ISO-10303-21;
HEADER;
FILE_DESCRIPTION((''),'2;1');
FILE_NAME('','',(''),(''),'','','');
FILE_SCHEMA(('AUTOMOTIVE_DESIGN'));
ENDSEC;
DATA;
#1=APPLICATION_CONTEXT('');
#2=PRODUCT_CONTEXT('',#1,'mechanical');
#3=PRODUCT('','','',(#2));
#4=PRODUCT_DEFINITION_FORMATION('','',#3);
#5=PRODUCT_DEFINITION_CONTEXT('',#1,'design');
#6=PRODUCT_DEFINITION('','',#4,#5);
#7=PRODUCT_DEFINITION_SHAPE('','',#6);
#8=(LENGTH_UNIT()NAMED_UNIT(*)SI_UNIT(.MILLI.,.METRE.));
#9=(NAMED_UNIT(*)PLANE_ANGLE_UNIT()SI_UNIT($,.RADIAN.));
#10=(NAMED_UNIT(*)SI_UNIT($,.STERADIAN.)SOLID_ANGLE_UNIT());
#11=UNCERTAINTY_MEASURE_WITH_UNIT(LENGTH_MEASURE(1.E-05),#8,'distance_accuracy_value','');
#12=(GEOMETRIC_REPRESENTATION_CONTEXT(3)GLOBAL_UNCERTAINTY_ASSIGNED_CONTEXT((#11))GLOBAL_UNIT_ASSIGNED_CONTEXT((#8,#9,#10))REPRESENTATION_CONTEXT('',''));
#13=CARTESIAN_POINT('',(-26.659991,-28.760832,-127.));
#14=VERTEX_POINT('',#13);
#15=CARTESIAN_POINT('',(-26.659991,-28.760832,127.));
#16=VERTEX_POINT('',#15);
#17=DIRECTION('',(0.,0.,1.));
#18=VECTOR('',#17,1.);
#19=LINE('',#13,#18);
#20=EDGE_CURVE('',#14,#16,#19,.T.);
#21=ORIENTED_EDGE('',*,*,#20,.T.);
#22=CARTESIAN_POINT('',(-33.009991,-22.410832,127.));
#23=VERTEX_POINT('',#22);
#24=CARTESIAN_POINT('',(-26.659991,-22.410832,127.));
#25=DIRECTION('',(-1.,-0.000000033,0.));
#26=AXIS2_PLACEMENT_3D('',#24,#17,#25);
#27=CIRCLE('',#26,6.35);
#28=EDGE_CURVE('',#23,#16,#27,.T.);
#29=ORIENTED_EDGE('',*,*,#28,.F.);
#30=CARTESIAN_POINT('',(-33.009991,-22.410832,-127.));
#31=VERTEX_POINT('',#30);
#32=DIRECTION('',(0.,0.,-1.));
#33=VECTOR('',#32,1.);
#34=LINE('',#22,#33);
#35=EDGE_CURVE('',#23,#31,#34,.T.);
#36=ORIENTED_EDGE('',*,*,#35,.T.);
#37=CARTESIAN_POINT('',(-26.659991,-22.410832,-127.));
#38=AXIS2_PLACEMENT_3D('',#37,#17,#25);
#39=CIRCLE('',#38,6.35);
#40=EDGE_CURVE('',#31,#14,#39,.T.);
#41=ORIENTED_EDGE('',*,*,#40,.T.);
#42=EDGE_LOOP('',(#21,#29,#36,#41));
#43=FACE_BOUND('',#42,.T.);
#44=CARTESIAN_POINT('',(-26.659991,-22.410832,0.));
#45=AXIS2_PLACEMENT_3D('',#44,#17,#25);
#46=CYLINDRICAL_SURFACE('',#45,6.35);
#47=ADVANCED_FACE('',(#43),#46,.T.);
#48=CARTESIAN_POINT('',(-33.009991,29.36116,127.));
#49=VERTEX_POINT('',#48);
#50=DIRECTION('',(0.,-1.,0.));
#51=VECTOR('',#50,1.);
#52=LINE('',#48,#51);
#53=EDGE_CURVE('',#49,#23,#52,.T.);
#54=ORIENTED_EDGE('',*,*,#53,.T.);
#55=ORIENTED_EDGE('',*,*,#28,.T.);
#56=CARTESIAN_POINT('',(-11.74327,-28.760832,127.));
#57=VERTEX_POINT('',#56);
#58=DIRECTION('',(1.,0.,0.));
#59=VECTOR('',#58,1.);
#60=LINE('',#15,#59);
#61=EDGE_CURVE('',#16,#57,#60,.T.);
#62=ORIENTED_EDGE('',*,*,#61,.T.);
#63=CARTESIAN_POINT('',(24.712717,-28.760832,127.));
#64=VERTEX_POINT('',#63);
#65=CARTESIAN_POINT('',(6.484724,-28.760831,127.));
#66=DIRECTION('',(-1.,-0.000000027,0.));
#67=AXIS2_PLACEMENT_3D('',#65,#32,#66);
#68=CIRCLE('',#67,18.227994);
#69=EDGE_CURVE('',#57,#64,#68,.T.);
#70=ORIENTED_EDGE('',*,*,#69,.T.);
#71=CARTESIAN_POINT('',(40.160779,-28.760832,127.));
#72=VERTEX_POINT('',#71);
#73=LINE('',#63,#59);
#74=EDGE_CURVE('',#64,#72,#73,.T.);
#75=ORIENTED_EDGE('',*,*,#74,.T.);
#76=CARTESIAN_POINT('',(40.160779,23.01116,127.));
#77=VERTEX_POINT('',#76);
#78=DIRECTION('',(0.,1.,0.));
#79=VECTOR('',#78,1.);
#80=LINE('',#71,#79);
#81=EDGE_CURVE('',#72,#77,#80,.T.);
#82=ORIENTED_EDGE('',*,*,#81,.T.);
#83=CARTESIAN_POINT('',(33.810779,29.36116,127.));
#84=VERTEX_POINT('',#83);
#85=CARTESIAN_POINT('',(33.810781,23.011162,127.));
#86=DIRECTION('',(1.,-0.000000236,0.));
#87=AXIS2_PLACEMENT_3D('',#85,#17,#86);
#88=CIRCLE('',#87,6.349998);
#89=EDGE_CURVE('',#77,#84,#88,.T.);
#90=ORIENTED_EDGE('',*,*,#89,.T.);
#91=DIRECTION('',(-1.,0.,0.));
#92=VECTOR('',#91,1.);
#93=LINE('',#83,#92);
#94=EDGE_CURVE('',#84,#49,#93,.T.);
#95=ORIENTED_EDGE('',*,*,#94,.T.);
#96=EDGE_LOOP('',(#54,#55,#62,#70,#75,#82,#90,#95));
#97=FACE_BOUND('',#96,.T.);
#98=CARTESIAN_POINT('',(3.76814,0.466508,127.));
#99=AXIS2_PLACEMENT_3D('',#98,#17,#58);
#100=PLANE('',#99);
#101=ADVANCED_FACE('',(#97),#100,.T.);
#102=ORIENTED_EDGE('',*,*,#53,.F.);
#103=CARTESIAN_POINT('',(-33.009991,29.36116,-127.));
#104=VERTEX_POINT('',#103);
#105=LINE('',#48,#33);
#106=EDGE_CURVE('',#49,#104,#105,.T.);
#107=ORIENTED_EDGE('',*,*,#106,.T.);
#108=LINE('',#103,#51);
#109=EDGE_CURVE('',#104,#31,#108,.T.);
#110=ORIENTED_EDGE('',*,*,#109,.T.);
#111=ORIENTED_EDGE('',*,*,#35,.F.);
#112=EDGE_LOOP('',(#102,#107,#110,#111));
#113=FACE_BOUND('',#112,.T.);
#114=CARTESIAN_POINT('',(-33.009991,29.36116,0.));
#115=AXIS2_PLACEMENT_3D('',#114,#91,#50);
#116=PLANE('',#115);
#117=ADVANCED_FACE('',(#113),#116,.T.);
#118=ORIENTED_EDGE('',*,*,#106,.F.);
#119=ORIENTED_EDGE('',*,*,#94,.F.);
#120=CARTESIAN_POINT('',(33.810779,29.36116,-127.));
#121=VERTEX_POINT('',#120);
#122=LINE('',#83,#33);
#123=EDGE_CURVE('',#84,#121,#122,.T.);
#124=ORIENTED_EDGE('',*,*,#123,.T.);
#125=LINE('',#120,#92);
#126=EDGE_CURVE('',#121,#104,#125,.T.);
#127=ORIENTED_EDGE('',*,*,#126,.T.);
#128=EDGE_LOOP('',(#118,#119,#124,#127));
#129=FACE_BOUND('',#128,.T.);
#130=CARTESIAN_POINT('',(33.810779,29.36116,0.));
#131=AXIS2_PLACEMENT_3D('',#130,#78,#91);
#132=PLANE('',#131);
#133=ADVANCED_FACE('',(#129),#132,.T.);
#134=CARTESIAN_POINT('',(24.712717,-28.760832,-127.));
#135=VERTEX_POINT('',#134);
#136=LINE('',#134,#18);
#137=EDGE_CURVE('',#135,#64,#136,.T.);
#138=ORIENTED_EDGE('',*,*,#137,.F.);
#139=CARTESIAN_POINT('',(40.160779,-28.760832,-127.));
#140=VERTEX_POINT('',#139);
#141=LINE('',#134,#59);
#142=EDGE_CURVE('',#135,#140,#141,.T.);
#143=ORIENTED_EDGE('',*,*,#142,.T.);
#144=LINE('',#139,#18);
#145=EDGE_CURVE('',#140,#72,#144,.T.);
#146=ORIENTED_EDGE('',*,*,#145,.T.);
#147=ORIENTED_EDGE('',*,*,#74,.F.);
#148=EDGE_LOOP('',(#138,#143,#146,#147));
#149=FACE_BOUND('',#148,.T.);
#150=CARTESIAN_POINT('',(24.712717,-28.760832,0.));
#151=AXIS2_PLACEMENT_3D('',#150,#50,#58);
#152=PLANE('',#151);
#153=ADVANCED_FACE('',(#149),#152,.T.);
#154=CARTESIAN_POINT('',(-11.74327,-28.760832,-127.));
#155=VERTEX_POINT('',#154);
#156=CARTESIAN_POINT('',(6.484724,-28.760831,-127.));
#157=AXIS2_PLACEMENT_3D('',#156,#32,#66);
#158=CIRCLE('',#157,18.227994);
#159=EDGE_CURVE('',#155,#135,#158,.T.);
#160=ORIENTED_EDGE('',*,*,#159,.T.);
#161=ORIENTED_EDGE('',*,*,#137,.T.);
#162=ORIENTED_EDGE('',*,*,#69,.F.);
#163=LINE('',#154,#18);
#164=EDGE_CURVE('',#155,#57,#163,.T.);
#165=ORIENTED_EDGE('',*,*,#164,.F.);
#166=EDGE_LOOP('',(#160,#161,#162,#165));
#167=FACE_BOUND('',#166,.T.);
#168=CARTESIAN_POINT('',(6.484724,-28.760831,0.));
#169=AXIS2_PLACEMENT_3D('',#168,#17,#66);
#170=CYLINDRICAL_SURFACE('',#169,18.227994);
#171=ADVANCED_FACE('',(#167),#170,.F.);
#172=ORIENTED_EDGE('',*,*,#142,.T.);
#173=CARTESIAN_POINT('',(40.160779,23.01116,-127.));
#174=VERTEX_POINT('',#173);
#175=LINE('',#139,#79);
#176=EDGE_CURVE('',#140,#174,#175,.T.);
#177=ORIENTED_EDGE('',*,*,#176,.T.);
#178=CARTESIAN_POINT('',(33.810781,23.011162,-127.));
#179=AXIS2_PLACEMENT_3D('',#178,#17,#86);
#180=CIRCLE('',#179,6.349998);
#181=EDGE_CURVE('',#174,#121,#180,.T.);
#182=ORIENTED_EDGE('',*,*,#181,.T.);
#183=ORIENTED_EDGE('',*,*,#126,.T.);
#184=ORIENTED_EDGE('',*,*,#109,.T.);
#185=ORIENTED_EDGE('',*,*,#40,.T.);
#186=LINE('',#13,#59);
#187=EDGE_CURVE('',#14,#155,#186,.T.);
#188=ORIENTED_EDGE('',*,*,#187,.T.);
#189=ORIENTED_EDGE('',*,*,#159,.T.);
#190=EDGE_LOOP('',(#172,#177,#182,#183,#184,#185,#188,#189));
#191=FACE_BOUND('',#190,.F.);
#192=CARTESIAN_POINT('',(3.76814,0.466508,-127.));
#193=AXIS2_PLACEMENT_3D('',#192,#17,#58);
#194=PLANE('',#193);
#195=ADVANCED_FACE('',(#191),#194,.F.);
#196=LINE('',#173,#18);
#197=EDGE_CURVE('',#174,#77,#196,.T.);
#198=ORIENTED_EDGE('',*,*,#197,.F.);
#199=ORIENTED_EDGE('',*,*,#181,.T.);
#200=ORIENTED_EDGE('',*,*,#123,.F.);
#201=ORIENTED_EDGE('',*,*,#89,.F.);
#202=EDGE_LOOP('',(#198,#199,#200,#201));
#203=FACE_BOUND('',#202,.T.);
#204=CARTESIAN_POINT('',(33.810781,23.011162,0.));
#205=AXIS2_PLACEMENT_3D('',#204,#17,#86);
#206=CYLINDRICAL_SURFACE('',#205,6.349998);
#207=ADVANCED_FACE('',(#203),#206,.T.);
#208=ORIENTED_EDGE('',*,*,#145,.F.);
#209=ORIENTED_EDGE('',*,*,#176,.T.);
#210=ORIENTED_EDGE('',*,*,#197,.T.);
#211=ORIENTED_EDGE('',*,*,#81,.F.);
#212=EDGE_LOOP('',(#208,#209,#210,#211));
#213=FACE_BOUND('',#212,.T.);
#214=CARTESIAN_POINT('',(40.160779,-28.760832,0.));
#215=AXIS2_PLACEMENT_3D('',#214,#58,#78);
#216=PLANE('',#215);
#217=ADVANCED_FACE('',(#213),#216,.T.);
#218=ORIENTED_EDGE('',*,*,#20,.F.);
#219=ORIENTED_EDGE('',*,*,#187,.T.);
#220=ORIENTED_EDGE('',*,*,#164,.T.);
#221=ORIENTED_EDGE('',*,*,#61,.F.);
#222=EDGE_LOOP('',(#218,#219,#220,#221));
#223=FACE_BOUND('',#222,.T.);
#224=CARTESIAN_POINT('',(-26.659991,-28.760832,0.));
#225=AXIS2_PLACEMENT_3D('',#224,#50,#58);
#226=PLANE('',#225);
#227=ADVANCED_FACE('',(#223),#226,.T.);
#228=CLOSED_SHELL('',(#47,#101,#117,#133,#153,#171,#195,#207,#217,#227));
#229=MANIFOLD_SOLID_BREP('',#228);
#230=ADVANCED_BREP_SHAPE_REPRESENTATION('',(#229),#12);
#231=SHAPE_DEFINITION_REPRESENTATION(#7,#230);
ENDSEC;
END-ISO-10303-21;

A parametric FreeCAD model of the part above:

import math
import FreeCAD as App
import Part
import Sketcher

V = App.Vector
Q = App.Units.Quantity

doc = App.newDocument("Part")
body = doc.addObject("PartDesign::Body", "Body")

sketch1 = body.newObject("Sketcher::SketchObject", "Sketch")
sketch1.AttachmentSupport = (doc.getObject("XY_Plane"), [""])
sketch1.MapMode = "FlatFace"
sketch1.addGeometry(Part.ArcOfCircle(Part.Circle(V(-27, -22, 0), V(0, 0, 1), 6), math.radians(-180), math.radians(-90)), False)
sketch1.addGeometry(Part.LineSegment(V(-27, -29, 0), V(-12, -29, 0)), False)
sketch1.addGeometry(Part.ArcOfCircle(Part.Circle(V(6, -29, 0), V(0, 0, 1), 18), math.radians(0), math.radians(180)), False)
sketch1.addGeometry(Part.LineSegment(V(25, -29, 0), V(40, -29, 0)), False)
sketch1.addGeometry(Part.LineSegment(V(40, -29, 0), V(40, 23, 0)), False)
sketch1.addGeometry(Part.ArcOfCircle(Part.Circle(V(34, 23, 0), V(0, 0, 1), 6), math.radians(0), math.radians(90)), False)
sketch1.addGeometry(Part.LineSegment(V(34, 29, 0), V(-33, 29, 0)), False)
sketch1.addGeometry(Part.LineSegment(V(-33, 29, 0), V(-33, -22, 0)), False)
sketch1.addConstraint(Sketcher.Constraint("Tangent", 0, 2, 1, 1))
sketch1.addConstraint(Sketcher.Constraint("Coincident", 1, 2, 2, 2))
sketch1.addConstraint(Sketcher.Constraint("Coincident", 2, 1, 3, 1))
sketch1.addConstraint(Sketcher.Constraint("Coincident", 3, 2, 4, 1))
sketch1.addConstraint(Sketcher.Constraint("Tangent", 4, 2, 5, 1))
sketch1.addConstraint(Sketcher.Constraint("Tangent", 5, 2, 6, 1))
sketch1.addConstraint(Sketcher.Constraint("Coincident", 6, 2, 7, 1))
sketch1.addConstraint(Sketcher.Constraint("Tangent", 7, 2, 0, 1))
sketch1.addConstraint(Sketcher.Constraint("Horizontal", 1))
sketch1.addConstraint(Sketcher.Constraint("Horizontal", 3))
sketch1.addConstraint(Sketcher.Constraint("Vertical", 4))
sketch1.addConstraint(Sketcher.Constraint("Horizontal", 6))
sketch1.addConstraint(Sketcher.Constraint("Vertical", 7))
sketch1.addConstraint(Sketcher.Constraint("Equal", 0, 5))
sketch1.addConstraint(Sketcher.Constraint("Horizontal", 2, 3, 0, 2))
sketch1.addConstraint(Sketcher.Constraint("Horizontal", 1, 2, 2, 1))
sketch1.addConstraint(Sketcher.Constraint("Radius", 0, Q("0.25 in")))
sketch1.addConstraint(Sketcher.Constraint("Radius", 2, Q("18.227994 mm")))
sketch1.addConstraint(Sketcher.Constraint("DistanceX", 1, 1, 1, 2, Q("14.916721 mm")))
sketch1.addConstraint(Sketcher.Constraint("DistanceX", 3, 1, 3, 2, Q("15.448062 mm")))
sketch1.addConstraint(Sketcher.Constraint("DistanceY", 4, 1, 4, 2, Q("51.771992 mm")))
sketch1.addConstraint(Sketcher.Constraint("DistanceX", 0, 3, -1, 1, Q("26.659991 mm")))
sketch1.addConstraint(Sketcher.Constraint("DistanceY", 0, 3, -1, 1, Q("22.410832 mm")))
pad1 = body.newObject("PartDesign::Pad", "Pad")
pad1.Profile = sketch1
pad1.Length = Q("10 in")
pad1.Midplane = True

doc.recompute()
